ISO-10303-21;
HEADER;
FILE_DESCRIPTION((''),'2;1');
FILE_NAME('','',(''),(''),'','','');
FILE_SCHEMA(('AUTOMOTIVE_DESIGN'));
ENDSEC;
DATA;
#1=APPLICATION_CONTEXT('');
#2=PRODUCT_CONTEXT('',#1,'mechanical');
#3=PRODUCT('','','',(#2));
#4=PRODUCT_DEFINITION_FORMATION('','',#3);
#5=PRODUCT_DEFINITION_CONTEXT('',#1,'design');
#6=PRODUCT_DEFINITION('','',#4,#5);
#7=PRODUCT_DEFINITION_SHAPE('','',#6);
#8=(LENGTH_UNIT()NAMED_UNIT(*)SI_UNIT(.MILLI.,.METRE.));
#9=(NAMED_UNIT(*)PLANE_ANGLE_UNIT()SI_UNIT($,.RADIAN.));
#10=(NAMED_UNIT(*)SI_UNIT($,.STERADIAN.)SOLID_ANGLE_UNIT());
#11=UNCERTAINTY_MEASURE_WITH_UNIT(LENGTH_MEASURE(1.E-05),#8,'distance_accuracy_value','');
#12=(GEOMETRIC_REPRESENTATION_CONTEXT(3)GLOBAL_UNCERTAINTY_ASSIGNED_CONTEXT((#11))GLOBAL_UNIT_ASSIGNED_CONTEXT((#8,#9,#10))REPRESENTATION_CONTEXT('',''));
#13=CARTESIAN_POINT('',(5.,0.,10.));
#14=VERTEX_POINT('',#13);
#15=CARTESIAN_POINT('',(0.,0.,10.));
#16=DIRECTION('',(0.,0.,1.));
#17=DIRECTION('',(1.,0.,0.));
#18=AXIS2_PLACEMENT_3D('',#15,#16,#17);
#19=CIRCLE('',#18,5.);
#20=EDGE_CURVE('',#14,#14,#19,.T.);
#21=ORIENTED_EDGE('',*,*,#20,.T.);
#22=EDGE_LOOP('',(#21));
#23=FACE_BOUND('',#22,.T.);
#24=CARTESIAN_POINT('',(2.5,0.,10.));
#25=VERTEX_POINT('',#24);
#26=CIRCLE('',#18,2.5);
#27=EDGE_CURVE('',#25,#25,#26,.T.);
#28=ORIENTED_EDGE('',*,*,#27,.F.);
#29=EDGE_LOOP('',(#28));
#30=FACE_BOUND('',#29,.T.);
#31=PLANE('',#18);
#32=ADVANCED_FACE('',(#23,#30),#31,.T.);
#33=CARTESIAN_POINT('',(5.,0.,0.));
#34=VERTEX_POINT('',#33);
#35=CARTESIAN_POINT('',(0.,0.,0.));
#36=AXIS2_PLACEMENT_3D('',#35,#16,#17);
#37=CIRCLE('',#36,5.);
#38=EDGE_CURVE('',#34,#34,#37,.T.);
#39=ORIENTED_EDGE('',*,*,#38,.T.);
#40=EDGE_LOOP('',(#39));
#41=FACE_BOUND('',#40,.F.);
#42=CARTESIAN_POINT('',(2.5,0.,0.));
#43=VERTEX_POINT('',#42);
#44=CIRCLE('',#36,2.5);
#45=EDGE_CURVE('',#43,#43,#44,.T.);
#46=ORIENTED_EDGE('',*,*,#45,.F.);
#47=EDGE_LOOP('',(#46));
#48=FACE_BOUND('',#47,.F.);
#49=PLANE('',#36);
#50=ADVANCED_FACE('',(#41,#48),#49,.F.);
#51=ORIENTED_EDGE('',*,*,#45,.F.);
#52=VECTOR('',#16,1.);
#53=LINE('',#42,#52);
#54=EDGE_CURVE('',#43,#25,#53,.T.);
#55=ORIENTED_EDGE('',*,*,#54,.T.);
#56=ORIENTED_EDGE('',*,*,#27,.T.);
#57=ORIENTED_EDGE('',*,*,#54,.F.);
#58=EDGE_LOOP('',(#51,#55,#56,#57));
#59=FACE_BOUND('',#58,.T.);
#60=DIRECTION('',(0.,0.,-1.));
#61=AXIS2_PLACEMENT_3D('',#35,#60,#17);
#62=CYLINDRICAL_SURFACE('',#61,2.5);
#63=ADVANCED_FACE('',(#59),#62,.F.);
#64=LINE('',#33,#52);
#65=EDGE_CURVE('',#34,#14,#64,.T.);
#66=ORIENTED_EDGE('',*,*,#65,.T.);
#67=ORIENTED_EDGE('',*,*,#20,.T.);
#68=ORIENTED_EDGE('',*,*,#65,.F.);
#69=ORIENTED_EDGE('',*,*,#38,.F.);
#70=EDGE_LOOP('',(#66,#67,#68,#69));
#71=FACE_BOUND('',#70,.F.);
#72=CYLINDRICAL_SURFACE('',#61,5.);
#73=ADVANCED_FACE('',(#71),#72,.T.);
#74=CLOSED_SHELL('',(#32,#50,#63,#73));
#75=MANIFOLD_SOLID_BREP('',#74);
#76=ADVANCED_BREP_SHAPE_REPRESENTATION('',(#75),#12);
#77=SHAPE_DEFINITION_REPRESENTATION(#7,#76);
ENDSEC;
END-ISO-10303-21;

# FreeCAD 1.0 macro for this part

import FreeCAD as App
import Part
import Sketcher
Q = App.Units.Quantity

doc = App.newDocument("Part")
body = doc.addObject("PartDesign::Body", "Body")

# Sketch on XY plane
sketch1 = body.newObject("Sketcher::SketchObject", "Sketch")
sketch1.AttachmentSupport = (doc.getObject("XY_Plane"), [""])
sketch1.MapMode = "FlatFace"
sketch1.addGeometry(Part.Circle(App.Vector(0, 0, 0), App.Vector(0, 0, 1), 5), False)
sketch1.addGeometry(Part.Circle(App.Vector(0, 0, 0), App.Vector(0, 0, 1), 2.5), False)
sketch1.addConstraint(Sketcher.Constraint("Coincident", 0, 3, -1, 1))
sketch1.addConstraint(Sketcher.Constraint("Coincident", 1, 3, -1, 1))
sketch1.addConstraint(Sketcher.Constraint("Diameter", 0, Q("10 mm")))
sketch1.addConstraint(Sketcher.Constraint("Diameter", 1, Q("5 mm")))
pad1 = body.newObject("PartDesign::Pad", "Pad")
pad1.Profile = sketch1
pad1.Length = 10

doc.recompute()
